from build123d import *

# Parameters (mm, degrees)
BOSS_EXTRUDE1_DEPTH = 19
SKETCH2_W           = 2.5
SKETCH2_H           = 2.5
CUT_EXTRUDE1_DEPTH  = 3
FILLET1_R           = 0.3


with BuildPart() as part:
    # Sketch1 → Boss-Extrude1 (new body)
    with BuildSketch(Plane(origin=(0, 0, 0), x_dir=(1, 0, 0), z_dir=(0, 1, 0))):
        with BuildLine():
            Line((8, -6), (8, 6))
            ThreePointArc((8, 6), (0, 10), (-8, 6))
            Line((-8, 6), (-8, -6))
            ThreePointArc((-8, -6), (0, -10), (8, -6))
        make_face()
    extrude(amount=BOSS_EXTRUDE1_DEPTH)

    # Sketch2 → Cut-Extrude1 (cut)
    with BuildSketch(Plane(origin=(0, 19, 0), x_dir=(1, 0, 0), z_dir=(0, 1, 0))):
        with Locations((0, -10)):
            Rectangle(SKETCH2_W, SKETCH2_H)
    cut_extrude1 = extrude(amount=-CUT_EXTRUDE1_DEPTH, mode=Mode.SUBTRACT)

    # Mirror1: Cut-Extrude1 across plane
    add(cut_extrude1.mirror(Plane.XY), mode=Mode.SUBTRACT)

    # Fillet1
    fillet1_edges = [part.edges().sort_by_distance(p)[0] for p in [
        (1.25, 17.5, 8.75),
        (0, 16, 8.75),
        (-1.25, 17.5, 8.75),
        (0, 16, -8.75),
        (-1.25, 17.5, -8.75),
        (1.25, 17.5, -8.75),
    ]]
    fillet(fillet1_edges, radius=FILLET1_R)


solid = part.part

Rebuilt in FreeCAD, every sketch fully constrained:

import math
import FreeCAD as App
import Part
import Sketcher

V = App.Vector


def edges_at(feature, points):
    """Names of the edges that pass closest to the given points."""
    edges = feature.Shape.Edges
    near = lambda p: min(range(len(edges)), key=lambda i: edges[i].distToShape(Part.Vertex(*p))[0])
    return sorted({f"Edge{near(p) + 1}" for p in points})

doc = App.newDocument("Part")
body = doc.addObject("PartDesign::Body", "Body")

sketch1 = body.newObject("Sketcher::SketchObject", "Sketch")
sketch1.AttachmentSupport = (doc.getObject("XZ_Plane"), [""])
sketch1.MapMode = "FlatFace"
sketch1.addGeometry([
    Part.LineSegment(V(8, 6, 0), V(8, -6, 0)),
    Part.ArcOfCircle(Part.Circle(V(0, 0, 0), V(0, 0, 1), 10), math.radians(-143), math.radians(-37)),
    Part.LineSegment(V(-8, -6, 0), V(-8, 6, 0)),
    Part.ArcOfCircle(Part.Circle(V(0, 0, 0), V(0, 0, 1), 10), math.radians(37), math.radians(143)),
], False)
sketch1.addConstraint([
    Sketcher.Constraint("Coincident", 0, 2, 1, 2),
    Sketcher.Constraint("Coincident", 1, 1, 2, 1),
    Sketcher.Constraint("Coincident", 2, 2, 3, 2),
    Sketcher.Constraint("Coincident", 3, 1, 0, 1),
    Sketcher.Constraint("Vertical", 0),
    Sketcher.Constraint("Vertical", 2),
    Sketcher.Constraint("Coincident", 1, 3, -1, 1),
    Sketcher.Constraint("Coincident", 3, 3, -1, 1),
    Sketcher.Constraint("Equal", 1, 3),
    Sketcher.Constraint("Horizontal", 0, 2, 1, 1),
    Sketcher.Constraint("Radius", 1, 10.0),
    Sketcher.Constraint("DistanceY", 0, 2, 0, 1, 12.0),
])
pad1 = body.newObject("PartDesign::Pad", "Pad")
pad1.Profile = sketch1
pad1.Length = 19
pad1.Reversed = True

sketch2 = body.newObject("Sketcher::SketchObject", "Sketch001")
sketch2.AttachmentSupport = (doc.getObject("XZ_Plane"), [""])
sketch2.MapMode = "FlatFace"
sketch2.AttachmentOffset = App.Placement(V(0, 0, -19), App.Rotation())
sketch2.addGeometry([
    Part.LineSegment(V(-1.2, 8.8, 0), V(-1.2, 11.2, 0)),
    Part.LineSegment(V(-1.2, 11.2, 0), V(1.2, 11.2, 0)),
    Part.LineSegment(V(1.2, 11.2, 0), V(1.2, 8.8, 0)),
    Part.LineSegment(V(1.2, 8.8, 0), V(-1.2, 8.8, 0)),
], False)
sketch2.addConstraint([
    Sketcher.Constraint("Coincident", 0, 2, 1, 1),
    Sketcher.Constraint("Coincident", 1, 2, 2, 1),
    Sketcher.Constraint("Coincident", 2, 2, 3, 1),
    Sketcher.Constraint("Coincident", 3, 2, 0, 1),
    Sketcher.Constraint("Vertical", 0),
    Sketcher.Constraint("Horizontal", 1),
    Sketcher.Constraint("Vertical", 2),
    Sketcher.Constraint("Horizontal", 3),
    Sketcher.Constraint("Equal", 3, 0),
    Sketcher.Constraint("DistanceX", 1, 1, 1, 2, 2.5),
    Sketcher.Constraint("DistanceX", 0, 2, -1, 1, 1.25),
    Sketcher.Constraint("DistanceY", -1, 1, 0, 2, 11.25),
])
pocket1 = body.newObject("PartDesign::Pocket", "Pocket")
pocket1.Profile = sketch2
pocket1.Length = 3
pocket1.Reversed = True
doc.recompute()

mirrored = body.newObject("PartDesign::Mirrored", "Mirrored")
mirrored.Originals = [pocket1]
mirrored.MirrorPlane = (doc.getObject("XY_Plane"), [""])
body.Tip = mirrored
doc.recompute()

fillet = body.newObject("PartDesign::Fillet", "Fillet")
fillet.Base = (mirrored, edges_at(mirrored, [
    (1.25, 17.5, 8.75),
    (0, 16, 8.75),
    (-1.25, 17.5, 8.75),
    (0, 16, -8.75),
    (-1.25, 17.5, -8.75),
    (1.25, 17.5, -8.75),
]))
fillet.Radius = 0.3

doc.recompute()
